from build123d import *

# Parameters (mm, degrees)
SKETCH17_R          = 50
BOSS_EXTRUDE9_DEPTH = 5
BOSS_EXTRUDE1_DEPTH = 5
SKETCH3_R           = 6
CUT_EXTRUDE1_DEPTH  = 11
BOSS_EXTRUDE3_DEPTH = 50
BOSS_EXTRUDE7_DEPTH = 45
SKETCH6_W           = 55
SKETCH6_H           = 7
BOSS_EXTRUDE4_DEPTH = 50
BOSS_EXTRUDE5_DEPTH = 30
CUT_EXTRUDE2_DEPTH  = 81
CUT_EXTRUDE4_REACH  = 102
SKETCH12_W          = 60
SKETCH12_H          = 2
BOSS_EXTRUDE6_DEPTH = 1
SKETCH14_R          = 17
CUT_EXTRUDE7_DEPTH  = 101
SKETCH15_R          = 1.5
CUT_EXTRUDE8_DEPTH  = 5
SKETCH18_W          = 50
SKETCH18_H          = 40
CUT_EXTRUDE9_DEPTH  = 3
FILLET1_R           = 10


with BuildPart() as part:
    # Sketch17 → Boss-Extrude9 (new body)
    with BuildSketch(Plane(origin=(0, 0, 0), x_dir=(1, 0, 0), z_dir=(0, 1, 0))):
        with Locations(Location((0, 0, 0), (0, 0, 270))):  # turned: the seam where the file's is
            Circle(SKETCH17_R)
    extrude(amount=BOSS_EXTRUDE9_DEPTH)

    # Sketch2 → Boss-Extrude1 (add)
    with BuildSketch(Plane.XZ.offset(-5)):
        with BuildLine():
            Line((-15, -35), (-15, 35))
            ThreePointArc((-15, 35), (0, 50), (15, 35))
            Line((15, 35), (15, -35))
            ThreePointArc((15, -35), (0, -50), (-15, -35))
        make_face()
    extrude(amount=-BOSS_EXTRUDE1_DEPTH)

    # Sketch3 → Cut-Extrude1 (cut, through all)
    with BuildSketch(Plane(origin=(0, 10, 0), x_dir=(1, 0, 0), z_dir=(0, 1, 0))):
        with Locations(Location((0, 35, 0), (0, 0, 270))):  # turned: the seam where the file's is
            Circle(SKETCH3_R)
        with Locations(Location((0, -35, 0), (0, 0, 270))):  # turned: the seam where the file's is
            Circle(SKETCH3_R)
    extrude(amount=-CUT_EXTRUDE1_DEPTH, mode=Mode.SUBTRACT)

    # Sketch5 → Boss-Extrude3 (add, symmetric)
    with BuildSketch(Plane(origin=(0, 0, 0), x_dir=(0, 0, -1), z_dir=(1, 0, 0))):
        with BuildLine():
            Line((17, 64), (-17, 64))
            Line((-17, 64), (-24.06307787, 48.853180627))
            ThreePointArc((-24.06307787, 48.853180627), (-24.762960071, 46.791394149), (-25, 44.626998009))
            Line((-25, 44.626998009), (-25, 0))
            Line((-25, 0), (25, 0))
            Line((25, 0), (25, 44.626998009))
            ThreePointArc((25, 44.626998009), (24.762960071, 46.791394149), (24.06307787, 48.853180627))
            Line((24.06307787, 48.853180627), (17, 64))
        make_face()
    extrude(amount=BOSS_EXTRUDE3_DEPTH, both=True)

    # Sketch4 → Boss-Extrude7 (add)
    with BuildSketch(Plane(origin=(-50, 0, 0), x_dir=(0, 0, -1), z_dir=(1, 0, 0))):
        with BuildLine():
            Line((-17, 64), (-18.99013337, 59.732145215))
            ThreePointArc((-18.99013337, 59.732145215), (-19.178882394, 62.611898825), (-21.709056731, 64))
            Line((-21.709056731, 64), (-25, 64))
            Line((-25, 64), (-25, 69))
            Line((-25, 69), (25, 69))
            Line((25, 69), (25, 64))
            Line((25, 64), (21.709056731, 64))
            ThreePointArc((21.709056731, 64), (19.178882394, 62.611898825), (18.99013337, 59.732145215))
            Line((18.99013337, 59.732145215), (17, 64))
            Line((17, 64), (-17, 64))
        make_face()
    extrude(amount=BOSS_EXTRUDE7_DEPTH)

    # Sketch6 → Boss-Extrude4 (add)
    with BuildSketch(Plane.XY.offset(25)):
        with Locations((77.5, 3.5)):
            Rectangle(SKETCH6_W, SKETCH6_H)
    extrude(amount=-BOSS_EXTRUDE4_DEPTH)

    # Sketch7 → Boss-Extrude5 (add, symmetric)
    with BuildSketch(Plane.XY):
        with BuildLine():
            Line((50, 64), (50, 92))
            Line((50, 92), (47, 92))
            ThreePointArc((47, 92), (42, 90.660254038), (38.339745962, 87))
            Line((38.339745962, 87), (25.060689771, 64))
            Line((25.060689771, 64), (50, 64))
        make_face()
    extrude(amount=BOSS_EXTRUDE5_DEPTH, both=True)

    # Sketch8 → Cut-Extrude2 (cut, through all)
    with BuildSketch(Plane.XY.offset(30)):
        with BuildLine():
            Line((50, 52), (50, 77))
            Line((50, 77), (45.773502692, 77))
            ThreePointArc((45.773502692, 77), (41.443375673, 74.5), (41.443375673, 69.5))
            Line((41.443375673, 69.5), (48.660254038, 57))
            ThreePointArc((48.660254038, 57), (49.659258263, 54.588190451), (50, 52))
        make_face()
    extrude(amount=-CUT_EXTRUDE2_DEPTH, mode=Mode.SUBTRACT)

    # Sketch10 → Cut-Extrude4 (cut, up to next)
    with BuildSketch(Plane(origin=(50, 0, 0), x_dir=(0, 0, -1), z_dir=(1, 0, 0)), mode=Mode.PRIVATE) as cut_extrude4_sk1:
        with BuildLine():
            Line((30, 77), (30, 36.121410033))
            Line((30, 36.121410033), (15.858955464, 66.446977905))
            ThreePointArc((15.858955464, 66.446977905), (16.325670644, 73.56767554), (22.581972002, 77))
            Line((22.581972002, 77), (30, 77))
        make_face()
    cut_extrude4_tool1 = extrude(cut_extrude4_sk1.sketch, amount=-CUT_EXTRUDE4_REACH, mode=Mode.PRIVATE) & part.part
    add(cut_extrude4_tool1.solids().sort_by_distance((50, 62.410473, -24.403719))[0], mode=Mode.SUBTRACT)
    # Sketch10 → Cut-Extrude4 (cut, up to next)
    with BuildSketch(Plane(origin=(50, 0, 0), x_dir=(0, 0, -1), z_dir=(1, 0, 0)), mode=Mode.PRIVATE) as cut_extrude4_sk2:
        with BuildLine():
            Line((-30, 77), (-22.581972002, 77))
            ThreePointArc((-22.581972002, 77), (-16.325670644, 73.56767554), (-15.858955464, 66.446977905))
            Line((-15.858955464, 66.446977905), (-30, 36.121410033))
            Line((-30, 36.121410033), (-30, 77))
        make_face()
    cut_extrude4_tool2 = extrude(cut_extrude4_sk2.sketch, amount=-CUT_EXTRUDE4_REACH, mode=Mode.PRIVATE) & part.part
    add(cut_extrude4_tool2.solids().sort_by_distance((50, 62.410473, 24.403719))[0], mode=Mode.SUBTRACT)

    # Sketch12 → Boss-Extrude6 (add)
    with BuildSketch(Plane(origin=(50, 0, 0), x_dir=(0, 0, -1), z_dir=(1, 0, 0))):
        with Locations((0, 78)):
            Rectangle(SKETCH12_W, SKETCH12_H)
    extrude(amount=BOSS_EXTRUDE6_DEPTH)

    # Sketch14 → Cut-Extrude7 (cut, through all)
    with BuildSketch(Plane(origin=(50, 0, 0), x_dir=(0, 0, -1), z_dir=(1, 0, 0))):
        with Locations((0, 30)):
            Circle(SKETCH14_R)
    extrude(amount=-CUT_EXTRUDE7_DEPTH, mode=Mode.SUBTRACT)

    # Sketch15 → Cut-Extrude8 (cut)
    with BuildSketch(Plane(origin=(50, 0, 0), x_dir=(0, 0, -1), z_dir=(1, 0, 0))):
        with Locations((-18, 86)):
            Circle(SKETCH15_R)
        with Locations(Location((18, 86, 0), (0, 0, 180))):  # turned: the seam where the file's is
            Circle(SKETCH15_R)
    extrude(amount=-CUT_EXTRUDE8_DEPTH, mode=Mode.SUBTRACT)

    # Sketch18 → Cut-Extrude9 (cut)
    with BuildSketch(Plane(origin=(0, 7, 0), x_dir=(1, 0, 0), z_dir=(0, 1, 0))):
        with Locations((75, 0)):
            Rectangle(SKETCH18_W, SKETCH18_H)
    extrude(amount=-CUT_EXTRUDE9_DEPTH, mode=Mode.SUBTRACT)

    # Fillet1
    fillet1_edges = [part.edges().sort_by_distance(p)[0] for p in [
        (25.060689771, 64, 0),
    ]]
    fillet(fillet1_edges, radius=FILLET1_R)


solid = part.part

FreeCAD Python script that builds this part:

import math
import FreeCAD as App
import Part
import Sketcher
Q = App.Units.Quantity


def edges_at(feature, points):
    """Names of the edges that pass closest to the given points."""
    edges = feature.Shape.Edges
    near = lambda p: min(range(len(edges)), key=lambda i: edges[i].distToShape(Part.Vertex(*p))[0])
    return sorted({f"Edge{near(p) + 1}" for p in points})


def add_polygon(sketch, points):
    """Adds a closed chain of lines whose ends are joined by coincident constraints."""
    first, n = sketch.GeometryCount, len(points)
    for a, b in zip(points, points[1:] + points[:1]):
        sketch.addGeometry(Part.LineSegment(App.Vector(*a, 0), App.Vector(*b, 0)), False)
    for i in range(n):
        sketch.addConstraint(Sketcher.Constraint("Coincident", first + i, 2, first + (i + 1) % n, 1))

doc = App.newDocument("Part")
body = doc.addObject("PartDesign::Body", "Body")

sketch1 = body.newObject("Sketcher::SketchObject", "Sketch")
sketch1.AttachmentSupport = (doc.getObject("XZ_Plane"), [""])
sketch1.MapMode = "FlatFace"
sketch1.addGeometry(Part.Circle(App.Vector(0, 0, 0), App.Vector(0, 0, 1), 50), False)
sketch1.addConstraint([
    Sketcher.Constraint("Coincident", 0, 3, -1, 1),
    Sketcher.Constraint("Diameter", 0, Q("100 mm")),
])
pad1 = body.newObject("PartDesign::Pad", "Pad")
pad1.Profile = sketch1
pad1.Length = 5
pad1.Reversed = True

sketch2 = body.newObject("Sketcher::SketchObject", "Sketch001")
sketch2.AttachmentSupport = (doc.getObject("XZ_Plane"), [""])
sketch2.MapMode = "FlatFace"
sketch2.AttachmentOffset = App.Placement(App.Vector(0, 0, -5), App.Rotation())
sketch2.addGeometry([
    Part.LineSegment(App.Vector(-15, 35, 0), App.Vector(-15, -35, 0)),
    Part.ArcOfCircle(Part.Circle(App.Vector(0, -35, 0), App.Vector(0, 0, 1), 15), math.radians(180), math.radians(360)),
    Part.LineSegment(App.Vector(15, -35, 0), App.Vector(15, 35, 0)),
    Part.ArcOfCircle(Part.Circle(App.Vector(0, 35, 0), App.Vector(0, 0, 1), 15), math.radians(0), math.radians(180)),
], False)
sketch2.addConstraint([
    Sketcher.Constraint("Tangent", 0, 2, 1, 1),
    Sketcher.Constraint("Tangent", 1, 2, 2, 1),
    Sketcher.Constraint("Tangent", 2, 2, 3, 1),
    Sketcher.Constraint("Tangent", 3, 2, 0, 1),
    Sketcher.Constraint("Vertical", 0),
    Sketcher.Constraint("Vertical", 2),
    Sketcher.Constraint("Symmetric", 1, 3, 3, 3, -1, 1),
    Sketcher.Constraint("Radius", 1, Q("15 mm")),
    Sketcher.Constraint("DistanceY", 0, 2, 0, 1, Q("70 mm")),
])
pad2 = body.newObject("PartDesign::Pad", "Pad001")
pad2.Profile = sketch2
pad2.Length = 5
pad2.Reversed = True

sketch3 = body.newObject("Sketcher::SketchObject", "Sketch002")
sketch3.AttachmentSupport = (doc.getObject("XZ_Plane"), [""])
sketch3.MapMode = "FlatFace"
sketch3.AttachmentOffset = App.Placement(App.Vector(0, 0, -10), App.Rotation())
sketch3.addGeometry([
    Part.Circle(App.Vector(0, -35, 0), App.Vector(0, 0, 1), 6),
    Part.Circle(App.Vector(0, 35, 0), App.Vector(0, 0, 1), 6),
], False)
sketch3.addConstraint([
    Sketcher.Constraint("Equal", 0, 1),
    Sketcher.Constraint("Symmetric", 0, 3, 1, 3, -1, 1),
    Sketcher.Constraint("PointOnObject", 0, 3, -2),
    Sketcher.Constraint("Diameter", 0, Q("12 mm")),
    Sketcher.Constraint("DistanceY", 0, 3, -1, 1, Q("35 mm")),
])
pocket1 = body.newObject("PartDesign::Pocket", "Pocket")
pocket1.Profile = sketch3
pocket1.Type = "ThroughAll"
pocket1.Reversed = True

sketch4 = body.newObject("Sketcher::SketchObject", "Sketch003")
sketch4.AttachmentSupport = (doc.getObject("YZ_Plane"), [""])
sketch4.MapMode = "FlatFace"
sketch4.addGeometry([
    Part.LineSegment(App.Vector(64, -17, 0), App.Vector(64, 17, 0)),
    Part.LineSegment(App.Vector(64, 17, 0), App.Vector(48.853181, 24.063078, 0)),
    Part.ArcOfCircle(Part.Circle(App.Vector(44.626998, 15, 0), App.Vector(0, 0, 1), 10), math.radians(65), math.radians(90)),
    Part.LineSegment(App.Vector(44.626998, 25, 0), App.Vector(0, 25, 0)),
    Part.LineSegment(App.Vector(0, 25, 0), App.Vector(0, -25, 0)),
    Part.LineSegment(App.Vector(0, -25, 0), App.Vector(44.626998, -25, 0)),
    Part.ArcOfCircle(Part.Circle(App.Vector(44.626998, -15, 0), App.Vector(0, 0, 1), 10), math.radians(-90), math.radians(-65)),
    Part.LineSegment(App.Vector(48.853181, -24.063078, 0), App.Vector(64, -17, 0)),
], False)
sketch4.addConstraint([
    Sketcher.Constraint("Coincident", 0, 2, 1, 1),
    Sketcher.Constraint("Tangent", 1, 2, 2, 1),
    Sketcher.Constraint("Tangent", 2, 2, 3, 1),
    Sketcher.Constraint("Coincident", 3, 2, 4, 1),
    Sketcher.Constraint("Coincident", 4, 2, 5, 1),
    Sketcher.Constraint("Tangent", 5, 2, 6, 1),
    Sketcher.Constraint("Tangent", 6, 2, 7, 1),
    Sketcher.Constraint("Coincident", 7, 2, 0, 1),
    Sketcher.Constraint("Vertical", 0),
    Sketcher.Constraint("Horizontal", 3),
    Sketcher.Constraint("Vertical", 4),
    Sketcher.Constraint("Horizontal", 5),
    Sketcher.Constraint("Equal", 2, 6),
    Sketcher.Constraint("Symmetric", 3, 2, 4, 2, -1, 1),
    Sketcher.Constraint("Symmetric", 1, 2, 6, 2, -1),
    Sketcher.Constraint("Radius", 2, Q("10 mm")),
    Sketcher.Constraint("DistanceY", 0, 1, 0, 2, Q("34 mm")),
    Sketcher.Constraint("DistanceY", 4, 2, 4, 1, Q("50 mm")),
    Sketcher.Constraint("Angle", 1, Q("155 deg")),
    Sketcher.Constraint("DistanceX", -1, 1, 0, 2, Q("64 mm")),
])
pad3 = body.newObject("PartDesign::Pad", "Pad002")
pad3.Profile = sketch4
pad3.Length = 100
pad3.Midplane = True

sketch5 = body.newObject("Sketcher::SketchObject", "Sketch004")
sketch5.AttachmentSupport = (doc.getObject("YZ_Plane"), [""])
sketch5.MapMode = "FlatFace"
sketch5.AttachmentOffset = App.Placement(App.Vector(0, 0, -50), App.Rotation())
sketch5.addGeometry([
    Part.LineSegment(App.Vector(59.732145, 18.990133, 0), App.Vector(64, 17, 0)),
    Part.LineSegment(App.Vector(64, 17, 0), App.Vector(64, -17, 0)),
    Part.LineSegment(App.Vector(64, -17, 0), App.Vector(59.732145, -18.990133, 0)),
    Part.ArcOfCircle(Part.Circle(App.Vector(61, -21.709057, 0), App.Vector(0, 0, 1), 3), math.radians(0), math.radians(115)),
    Part.LineSegment(App.Vector(64, -21.709057, 0), App.Vector(64, -25, 0)),
    Part.LineSegment(App.Vector(64, -25, 0), App.Vector(69, -25, 0)),
    Part.LineSegment(App.Vector(69, -25, 0), App.Vector(69, 25, 0)),
    Part.LineSegment(App.Vector(69, 25, 0), App.Vector(64, 25, 0)),
    Part.LineSegment(App.Vector(64, 25, 0), App.Vector(64, 21.709057, 0)),
    Part.ArcOfCircle(Part.Circle(App.Vector(61, 21.709057, 0), App.Vector(0, 0, 1), 3), math.radians(-115), math.radians(0)),
], False)
sketch5.addConstraint([
    Sketcher.Constraint("Coincident", 0, 2, 1, 1),
    Sketcher.Constraint("Coincident", 1, 2, 2, 1),
    Sketcher.Constraint("Tangent", 2, 2, 3, 2),
    Sketcher.Constraint("Tangent", 3, 1, 4, 1),
    Sketcher.Constraint("Coincident", 4, 2, 5, 1),
    Sketcher.Constraint("Coincident", 5, 2, 6, 1),
    Sketcher.Constraint("Coincident", 6, 2, 7, 1),
    Sketcher.Constraint("Coincident", 7, 2, 8, 1),
    Sketcher.Constraint("Tangent", 8, 2, 9, 2),
    Sketcher.Constraint("Tangent", 9, 1, 0, 1),
    Sketcher.Constraint("Vertical", 1),
    Sketcher.Constraint("Vertical", 4),
    Sketcher.Constraint("Horizontal", 5),
    Sketcher.Constraint("Vertical", 6),
    Sketcher.Constraint("Horizontal", 7),
    Sketcher.Constraint("Vertical", 8),
    Sketcher.Constraint("Equal", 3, 9),
    Sketcher.Constraint("Symmetric", 3, 3, 9, 3, -1),
    Sketcher.Constraint("Vertical", 1, 2, 3, 1),
    Sketcher.Constraint("Vertical", 2, 2, 9, 1),
    Sketcher.Constraint("Equal", 4, 8),
    Sketcher.Constraint("Radius", 3, Q("3 mm")),
    Sketcher.Constraint("DistanceX", 5, 1, 5, 2, Q("5 mm")),
    Sketcher.Constraint("DistanceY", 1, 2, 1, 1, Q("34 mm")),
    Sketcher.Constraint("DistanceY", 6, 1, 6, 2, Q("50 mm")),
    Sketcher.Constraint("Angle", 0, Q("-25 deg")),
    Sketcher.Constraint("DistanceX", -1, 1, 3, 3, Q("61 mm")),
])
pad4 = body.newObject("PartDesign::Pad", "Pad003")
pad4.Profile = sketch5
pad4.Length = 45

sketch6 = body.newObject("Sketcher::SketchObject", "Sketch005")
sketch6.AttachmentSupport = (doc.getObject("XY_Plane"), [""])
sketch6.MapMode = "FlatFace"
sketch6.AttachmentOffset = App.Placement(App.Vector(0, 0, 25), App.Rotation())
add_polygon(sketch6, [(50, 7), (50, 0), (105, 0), (105, 7)])
sketch6.addConstraint([
    Sketcher.Constraint("Vertical", 0),
    Sketcher.Constraint("Horizontal", 1),
    Sketcher.Constraint("Vertical", 2),
    Sketcher.Constraint("Horizontal", 3),
    Sketcher.Constraint("PointOnObject", 0, 2, -1),
    Sketcher.Constraint("DistanceX", 1, 1, 1, 2, Q("55 mm")),
    Sketcher.Constraint("DistanceY", 0, 2, 0, 1, Q("7 mm")),
    Sketcher.Constraint("DistanceX", -1, 1, 0, 2, Q("50 mm")),
])
pad5 = body.newObject("PartDesign::Pad", "Pad004")
pad5.Profile = sketch6
pad5.Length = 50
pad5.Reversed = True

sketch7 = body.newObject("Sketcher::SketchObject", "Sketch006")
sketch7.AttachmentSupport = (doc.getObject("XY_Plane"), [""])
sketch7.MapMode = "FlatFace"
sketch7.addGeometry([
    Part.LineSegment(App.Vector(50, 64, 0), App.Vector(50, 92, 0)),
    Part.LineSegment(App.Vector(50, 92, 0), App.Vector(47, 92, 0)),
    Part.ArcOfCircle(Part.Circle(App.Vector(47, 82, 0), App.Vector(0, 0, 1), 10), math.radians(90), math.radians(150)),
    Part.LineSegment(App.Vector(38.339746, 87, 0), App.Vector(25.06069, 64, 0)),
    Part.LineSegment(App.Vector(25.06069, 64, 0), App.Vector(50, 64, 0)),
], False)
sketch7.addConstraint([
    Sketcher.Constraint("Coincident", 0, 2, 1, 1),
    Sketcher.Constraint("Tangent", 1, 2, 2, 1),
    Sketcher.Constraint("Tangent", 2, 2, 3, 1),
    Sketcher.Constraint("Coincident", 3, 2, 4, 1),
    Sketcher.Constraint("Coincident", 4, 2, 0, 1),
    Sketcher.Constraint("Vertical", 0),
    Sketcher.Constraint("Horizontal", 1),
    Sketcher.Constraint("Horizontal", 4),
    Sketcher.Constraint("Radius", 2, Q("10 mm")),
    Sketcher.Constraint("DistanceX", 1, 2, 1, 1, Q("3 mm")),
    Sketcher.Constraint("DistanceY", 0, 1, 0, 2, Q("28 mm")),
    Sketcher.Constraint("Angle", 3, Q("-120 deg")),
    Sketcher.Constraint("DistanceX", -1, 1, 2, 3, Q("47 mm")),
    Sketcher.Constraint("DistanceY", -1, 1, 2, 3, Q("82 mm")),
])
pad6 = body.newObject("PartDesign::Pad", "Pad005")
pad6.Profile = sketch7
pad6.Length = 60
pad6.Midplane = True

sketch8 = body.newObject("Sketcher::SketchObject", "Sketch007")
sketch8.AttachmentSupport = (doc.getObject("XY_Plane"), [""])
sketch8.MapMode = "FlatFace"
sketch8.AttachmentOffset = App.Placement(App.Vector(0, 0, 30), App.Rotation())
sketch8.addGeometry([
    Part.LineSegment(App.Vector(50, 52, 0), App.Vector(50, 77, 0)),
    Part.LineSegment(App.Vector(50, 77, 0), App.Vector(45.773503, 77, 0)),
    Part.ArcOfCircle(Part.Circle(App.Vector(45.773503, 72, 0), App.Vector(0, 0, 1), 5), math.radians(90), math.radians(210)),
    Part.LineSegment(App.Vector(41.443376, 69.5, 0), App.Vector(48.660254, 57, 0)),
    Part.ArcOfCircle(Part.Circle(App.Vector(40, 52, 0), App.Vector(0, 0, 1), 10), math.radians(0), math.radians(30)),
], False)
sketch8.addConstraint([
    Sketcher.Constraint("Coincident", 0, 2, 1, 1),
    Sketcher.Constraint("Tangent", 1, 2, 2, 1),
    Sketcher.Constraint("Tangent", 2, 2, 3, 1),
    Sketcher.Constraint("Tangent", 3, 2, 4, 2),
    Sketcher.Constraint("Tangent", 4, 1, 0, 1),
    Sketcher.Constraint("Vertical", 0),
    Sketcher.Constraint("Horizontal", 1),
    Sketcher.Constraint("Radius", 2, Q("5 mm")),
    Sketcher.Constraint("Radius", 4, Q("10 mm")),
    Sketcher.Constraint("DistanceY", 0, 1, 0, 2, Q("25 mm")),
    Sketcher.Constraint("Angle", 3, Q("-60 deg")),
    Sketcher.Constraint("DistanceY", -1, 1, 2, 3, Q("72 mm")),
    Sketcher.Constraint("DistanceX", -1, 1, 4, 3, Q("40 mm")),
])
pocket2 = body.newObject("PartDesign::Pocket", "Pocket001")
pocket2.Profile = sketch8
pocket2.Type = "ThroughAll"

sketch9 = body.newObject("Sketcher::SketchObject", "Sketch008")
sketch9.AttachmentSupport = (doc.getObject("YZ_Plane"), [""])
sketch9.MapMode = "FlatFace"
sketch9.AttachmentOffset = App.Placement(App.Vector(0, 0, 50), App.Rotation())
sketch9.addGeometry([
    Part.LineSegment(App.Vector(36.12141, -30, 0), App.Vector(77, -30, 0)),
    Part.LineSegment(App.Vector(77, -30, 0), App.Vector(77, -22.581972, 0)),
    Part.ArcOfCircle(Part.Circle(App.Vector(69.581972, -22.581972, 0), App.Vector(0, 0, 1), 7.418028), math.radians(0), math.radians(115)),
    Part.LineSegment(App.Vector(66.446978, -15.858955, 0), App.Vector(36.12141, -30, 0)),
], False)
sketch9.addConstraint([
    Sketcher.Constraint("Coincident", 0, 2, 1, 1),
    Sketcher.Constraint("Tangent", 1, 2, 2, 1),
    Sketcher.Constraint("Tangent", 2, 2, 3, 1),
    Sketcher.Constraint("Coincident", 3, 2, 0, 1),
    Sketcher.Constraint("Horizontal", 0),
    Sketcher.Constraint("Vertical", 1),
    Sketcher.Constraint("Angle", 3, Q("-155 deg")),
    Sketcher.Constraint("DistanceX", -1, 1, 0, 2, Q("77 mm")),
    Sketcher.Constraint("DistanceY", 0, 2, -1, 1, Q("30 mm")),
    Sketcher.Constraint("Radius", 2, Q("7.418028 mm")),
    Sketcher.Constraint("DistanceX", 0, 1, 0, 2, Q("40.87859 mm")),
])
pocket3 = body.newObject("PartDesign::Pocket", "Pocket002")
pocket3.Profile = sketch9
pocket3.Length = 24.93931

sketch10 = body.newObject("Sketcher::SketchObject", "Sketch009")
sketch10.AttachmentSupport = (doc.getObject("YZ_Plane"), [""])
sketch10.MapMode = "FlatFace"
sketch10.AttachmentOffset = App.Placement(App.Vector(0, 0, 50), App.Rotation())
sketch10.addGeometry([
    Part.LineSegment(App.Vector(77, 22.581972, 0), App.Vector(77, 30, 0)),
    Part.LineSegment(App.Vector(77, 30, 0), App.Vector(36.12141, 30, 0)),
    Part.LineSegment(App.Vector(36.12141, 30, 0), App.Vector(66.446978, 15.858955, 0)),
    Part.ArcOfCircle(Part.Circle(App.Vector(69.581972, 22.581972, 0), App.Vector(0, 0, 1), 7.418028), math.radians(-115), math.radians(0)),
], False)
sketch10.addConstraint([
    Sketcher.Constraint("Coincident", 0, 2, 1, 1),
    Sketcher.Constraint("Coincident", 1, 2, 2, 1),
    Sketcher.Constraint("Tangent", 2, 2, 3, 1),
    Sketcher.Constraint("Tangent", 3, 2, 0, 1),
    Sketcher.Constraint("Vertical", 0),
    Sketcher.Constraint("Horizontal", 1),
    Sketcher.Constraint("Angle", 2, Q("-25 deg")),
    Sketcher.Constraint("DistanceX", -1, 1, 0, 2, Q("77 mm")),
    Sketcher.Constraint("DistanceY", -1, 1, 0, 2, Q("30 mm")),
    Sketcher.Constraint("Radius", 3, Q("7.418028 mm")),
    Sketcher.Constraint("DistanceX", 1, 2, 1, 1, Q("40.87859 mm")),
])
pocket4 = body.newObject("PartDesign::Pocket", "Pocket003")
pocket4.Profile = sketch10
pocket4.Length = 24.93931

sketch11 = body.newObject("Sketcher::SketchObject", "Sketch010")
sketch11.AttachmentSupport = (doc.getObject("YZ_Plane"), [""])
sketch11.MapMode = "FlatFace"
sketch11.AttachmentOffset = App.Placement(App.Vector(0, 0, 50), App.Rotation())
add_polygon(sketch11, [(79, 30), (77, 30), (77, -30), (79, -30)])
sketch11.addConstraint([
    Sketcher.Constraint("Horizontal", 0),
    Sketcher.Constraint("Vertical", 1),
    Sketcher.Constraint("Horizontal", 2),
    Sketcher.Constraint("Vertical", 3),
    Sketcher.Constraint("DistanceX", 0, 2, 0, 1, Q("2 mm")),
    Sketcher.Constraint("DistanceY", 1, 2, 1, 1, Q("60 mm")),
    Sketcher.Constraint("DistanceX", -1, 1, 0, 2, Q("77 mm")),
    Sketcher.Constraint("DistanceY", -1, 1, 0, 2, Q("30 mm")),
])
pad7 = body.newObject("PartDesign::Pad", "Pad006")
pad7.Profile = sketch11
pad7.Length = 1

sketch12 = body.newObject("Sketcher::SketchObject", "Sketch011")
sketch12.AttachmentSupport = (doc.getObject("YZ_Plane"), [""])
sketch12.MapMode = "FlatFace"
sketch12.AttachmentOffset = App.Placement(App.Vector(0, 0, 50), App.Rotation())
sketch12.addGeometry(Part.Circle(App.Vector(30, 0, 0), App.Vector(0, 0, 1), 17), False)
sketch12.addConstraint([
    Sketcher.Constraint("PointOnObject", 0, 3, -1),
    Sketcher.Constraint("Diameter", 0, Q("34 mm")),
    Sketcher.Constraint("DistanceX", -1, 1, 0, 3, Q("30 mm")),
])
pocket5 = body.newObject("PartDesign::Pocket", "Pocket004")
pocket5.Profile = sketch12
pocket5.Type = "ThroughAll"

sketch13 = body.newObject("Sketcher::SketchObject", "Sketch012")
sketch13.AttachmentSupport = (doc.getObject("YZ_Plane"), [""])
sketch13.MapMode = "FlatFace"
sketch13.AttachmentOffset = App.Placement(App.Vector(0, 0, 50), App.Rotation())
sketch13.addGeometry([
    Part.Circle(App.Vector(86, 18, 0), App.Vector(0, 0, 1), 1.5),
    Part.Circle(App.Vector(86, -18, 0), App.Vector(0, 0, 1), 1.5),
], False)
sketch13.addConstraint([
    Sketcher.Constraint("Equal", 0, 1),
    Sketcher.Constraint("Symmetric", 0, 3, 1, 3, -1),
    Sketcher.Constraint("Diameter", 0, Q("3 mm")),
    Sketcher.Constraint("DistanceX", -1, 1, 0, 3, Q("86 mm")),
    Sketcher.Constraint("DistanceY", -1, 1, 0, 3, Q("18 mm")),
])
pocket6 = body.newObject("PartDesign::Pocket", "Pocket005")
pocket6.Profile = sketch13
pocket6.Length = 5

sketch14 = body.newObject("Sketcher::SketchObject", "Sketch013")
sketch14.AttachmentSupport = (doc.getObject("XZ_Plane"), [""])
sketch14.MapMode = "FlatFace"
sketch14.AttachmentOffset = App.Placement(App.Vector(0, 0, -7), App.Rotation())
add_polygon(sketch14, [(50, -20), (50, 20), (100, 20), (100, -20)])
sketch14.addConstraint([
    Sketcher.Constraint("Vertical", 0),
    Sketcher.Constraint("Horizontal", 1),
    Sketcher.Constraint("Vertical", 2),
    Sketcher.Constraint("Horizontal", 3),
    Sketcher.Constraint("DistanceX", 1, 1, 1, 2, Q("50 mm")),
    Sketcher.Constraint("DistanceY", 0, 1, 0, 2, Q("40 mm")),
    Sketcher.Constraint("DistanceX", -1, 1, 0, 2, Q("50 mm")),
    Sketcher.Constraint("DistanceY", -1, 1, 0, 2, Q("20 mm")),
])
pocket7 = body.newObject("PartDesign::Pocket", "Pocket006")
pocket7.Profile = sketch14
pocket7.Length = 3
pocket7.Reversed = True
doc.recompute()

fillet = body.newObject("PartDesign::Fillet", "Fillet")
fillet.Base = (pocket7, edges_at(pocket7, [(25.061, 64, 0)]))
fillet.Radius = 10

doc.recompute()
